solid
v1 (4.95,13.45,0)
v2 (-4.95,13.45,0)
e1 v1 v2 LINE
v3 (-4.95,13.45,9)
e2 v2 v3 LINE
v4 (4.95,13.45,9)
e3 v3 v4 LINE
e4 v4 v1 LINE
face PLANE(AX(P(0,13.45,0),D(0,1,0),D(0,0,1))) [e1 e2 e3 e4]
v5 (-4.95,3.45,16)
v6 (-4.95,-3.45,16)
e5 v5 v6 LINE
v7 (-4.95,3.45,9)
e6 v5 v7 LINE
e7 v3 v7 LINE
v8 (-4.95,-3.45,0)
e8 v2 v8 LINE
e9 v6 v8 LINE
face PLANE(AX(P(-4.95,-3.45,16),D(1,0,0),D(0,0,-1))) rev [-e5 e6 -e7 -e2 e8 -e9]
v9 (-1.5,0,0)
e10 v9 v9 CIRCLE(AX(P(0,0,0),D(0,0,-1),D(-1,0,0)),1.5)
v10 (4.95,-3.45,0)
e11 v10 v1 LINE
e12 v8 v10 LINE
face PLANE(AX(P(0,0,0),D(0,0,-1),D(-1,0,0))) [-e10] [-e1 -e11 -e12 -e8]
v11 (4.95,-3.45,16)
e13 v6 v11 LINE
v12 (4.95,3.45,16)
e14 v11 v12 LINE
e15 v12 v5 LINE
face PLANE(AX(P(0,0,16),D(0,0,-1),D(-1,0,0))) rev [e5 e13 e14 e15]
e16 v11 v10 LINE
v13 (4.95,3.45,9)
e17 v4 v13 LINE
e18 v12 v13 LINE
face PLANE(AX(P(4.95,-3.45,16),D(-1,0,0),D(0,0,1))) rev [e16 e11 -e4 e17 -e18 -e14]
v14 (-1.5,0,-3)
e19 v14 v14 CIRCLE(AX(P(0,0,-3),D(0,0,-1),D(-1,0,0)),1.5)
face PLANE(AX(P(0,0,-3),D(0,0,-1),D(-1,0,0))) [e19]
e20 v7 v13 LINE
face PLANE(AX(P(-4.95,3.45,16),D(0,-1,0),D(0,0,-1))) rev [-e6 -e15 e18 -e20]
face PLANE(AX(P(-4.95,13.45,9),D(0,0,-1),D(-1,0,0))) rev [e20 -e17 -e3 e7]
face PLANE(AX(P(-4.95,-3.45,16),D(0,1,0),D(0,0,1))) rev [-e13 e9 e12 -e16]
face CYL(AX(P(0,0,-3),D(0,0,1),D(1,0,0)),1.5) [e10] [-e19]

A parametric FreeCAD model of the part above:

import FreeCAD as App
import Part
import Sketcher


def add_polygon(sketch, points):
    """Adds a closed chain of lines whose ends are joined by coincident constraints."""
    first, n = sketch.GeometryCount, len(points)
    for a, b in zip(points, points[1:] + points[:1]):
        sketch.addGeometry(Part.LineSegment(App.Vector(*a, 0), App.Vector(*b, 0)), False)
    for i in range(n):
        sketch.addConstraint(Sketcher.Constraint("Coincident", first + i, 2, first + (i + 1) % n, 1))

doc = App.newDocument("Part")
body = doc.addObject("PartDesign::Body", "Body")

sketch1 = doc.addObject("Sketcher::SketchObject", "Sketch")
body.addObject(sketch1)
sketch1.AttachmentSupport = (doc.XY_Plane, [""])
sketch1.MapMode = "FlatFace"
add_polygon(sketch1, [(-5, 3), (-5, -3), (5, -3), (5, 3)])
sketch1.addConstraint(Sketcher.Constraint("Vertical", 0))
sketch1.addConstraint(Sketcher.Constraint("Horizontal", 1))
sketch1.addConstraint(Sketcher.Constraint("Vertical", 2))
sketch1.addConstraint(Sketcher.Constraint("Horizontal", 3))
sketch1.addConstraint(Sketcher.Constraint("Symmetric", 0, 2, 2, 2, -1, 1))
sketch1.addConstraint(Sketcher.Constraint("DistanceX", 1, 1, 1, 2, 9.9))
sketch1.addConstraint(Sketcher.Constraint("DistanceY", 0, 2, 0, 1, 6.9))
pad1 = doc.addObject("PartDesign::Pad", "Pad")
body.addObject(pad1)
pad1.Profile = sketch1
pad1.Length = 16

sketch2 = doc.addObject("Sketcher::SketchObject", "Sketch001")
body.addObject(sketch2)
sketch2.AttachmentSupport = (doc.XZ_Plane, [""])
sketch2.MapMode = "FlatFace"
sketch2.AttachmentOffset = App.Placement(App.Vector(0, 0, -3.45), App.Rotation())
add_polygon(sketch2, [(-5, 0), (-5, 9), (5, 9), (5, 0)])
sketch2.addConstraint(Sketcher.Constraint("Vertical", 0))
sketch2.addConstraint(Sketcher.Constraint("Horizontal", 1))
sketch2.addConstraint(Sketcher.Constraint("Vertical", 2))
sketch2.addConstraint(Sketcher.Constraint("Horizontal", 3))
sketch2.addConstraint(Sketcher.Constraint("Symmetric", 2, 2, 3, 2, -1, 1))
sketch2.addConstraint(Sketcher.Constraint("DistanceY", 0, 1, 0, 2, 9.0))
sketch2.addConstraint(Sketcher.Constraint("DistanceX", 1, 1, 1, 2, 9.9))
pad2 = doc.addObject("PartDesign::Pad", "Pad001")
body.addObject(pad2)
pad2.Profile = sketch2
pad2.Length = 10
pad2.Reversed = True

sketch3 = doc.addObject("Sketcher::SketchObject", "Sketch002")
body.addObject(sketch3)
sketch3.AttachmentSupport = (doc.XY_Plane, [""])
sketch3.MapMode = "FlatFace"
sketch3.addGeometry(Part.Circle(App.Vector(0, 0, 0), App.Vector(0, 0, 1), 1.5), False)
sketch3.addConstraint(Sketcher.Constraint("Coincident", 0, 3, -1, 1))
sketch3.addConstraint(Sketcher.Constraint("Diameter", 0, 3.0))
pad3 = doc.addObject("PartDesign::Pad", "Pad002")
body.addObject(pad3)
pad3.Profile = sketch3
pad3.Length = 3
pad3.Reversed = True

doc.recompute()
